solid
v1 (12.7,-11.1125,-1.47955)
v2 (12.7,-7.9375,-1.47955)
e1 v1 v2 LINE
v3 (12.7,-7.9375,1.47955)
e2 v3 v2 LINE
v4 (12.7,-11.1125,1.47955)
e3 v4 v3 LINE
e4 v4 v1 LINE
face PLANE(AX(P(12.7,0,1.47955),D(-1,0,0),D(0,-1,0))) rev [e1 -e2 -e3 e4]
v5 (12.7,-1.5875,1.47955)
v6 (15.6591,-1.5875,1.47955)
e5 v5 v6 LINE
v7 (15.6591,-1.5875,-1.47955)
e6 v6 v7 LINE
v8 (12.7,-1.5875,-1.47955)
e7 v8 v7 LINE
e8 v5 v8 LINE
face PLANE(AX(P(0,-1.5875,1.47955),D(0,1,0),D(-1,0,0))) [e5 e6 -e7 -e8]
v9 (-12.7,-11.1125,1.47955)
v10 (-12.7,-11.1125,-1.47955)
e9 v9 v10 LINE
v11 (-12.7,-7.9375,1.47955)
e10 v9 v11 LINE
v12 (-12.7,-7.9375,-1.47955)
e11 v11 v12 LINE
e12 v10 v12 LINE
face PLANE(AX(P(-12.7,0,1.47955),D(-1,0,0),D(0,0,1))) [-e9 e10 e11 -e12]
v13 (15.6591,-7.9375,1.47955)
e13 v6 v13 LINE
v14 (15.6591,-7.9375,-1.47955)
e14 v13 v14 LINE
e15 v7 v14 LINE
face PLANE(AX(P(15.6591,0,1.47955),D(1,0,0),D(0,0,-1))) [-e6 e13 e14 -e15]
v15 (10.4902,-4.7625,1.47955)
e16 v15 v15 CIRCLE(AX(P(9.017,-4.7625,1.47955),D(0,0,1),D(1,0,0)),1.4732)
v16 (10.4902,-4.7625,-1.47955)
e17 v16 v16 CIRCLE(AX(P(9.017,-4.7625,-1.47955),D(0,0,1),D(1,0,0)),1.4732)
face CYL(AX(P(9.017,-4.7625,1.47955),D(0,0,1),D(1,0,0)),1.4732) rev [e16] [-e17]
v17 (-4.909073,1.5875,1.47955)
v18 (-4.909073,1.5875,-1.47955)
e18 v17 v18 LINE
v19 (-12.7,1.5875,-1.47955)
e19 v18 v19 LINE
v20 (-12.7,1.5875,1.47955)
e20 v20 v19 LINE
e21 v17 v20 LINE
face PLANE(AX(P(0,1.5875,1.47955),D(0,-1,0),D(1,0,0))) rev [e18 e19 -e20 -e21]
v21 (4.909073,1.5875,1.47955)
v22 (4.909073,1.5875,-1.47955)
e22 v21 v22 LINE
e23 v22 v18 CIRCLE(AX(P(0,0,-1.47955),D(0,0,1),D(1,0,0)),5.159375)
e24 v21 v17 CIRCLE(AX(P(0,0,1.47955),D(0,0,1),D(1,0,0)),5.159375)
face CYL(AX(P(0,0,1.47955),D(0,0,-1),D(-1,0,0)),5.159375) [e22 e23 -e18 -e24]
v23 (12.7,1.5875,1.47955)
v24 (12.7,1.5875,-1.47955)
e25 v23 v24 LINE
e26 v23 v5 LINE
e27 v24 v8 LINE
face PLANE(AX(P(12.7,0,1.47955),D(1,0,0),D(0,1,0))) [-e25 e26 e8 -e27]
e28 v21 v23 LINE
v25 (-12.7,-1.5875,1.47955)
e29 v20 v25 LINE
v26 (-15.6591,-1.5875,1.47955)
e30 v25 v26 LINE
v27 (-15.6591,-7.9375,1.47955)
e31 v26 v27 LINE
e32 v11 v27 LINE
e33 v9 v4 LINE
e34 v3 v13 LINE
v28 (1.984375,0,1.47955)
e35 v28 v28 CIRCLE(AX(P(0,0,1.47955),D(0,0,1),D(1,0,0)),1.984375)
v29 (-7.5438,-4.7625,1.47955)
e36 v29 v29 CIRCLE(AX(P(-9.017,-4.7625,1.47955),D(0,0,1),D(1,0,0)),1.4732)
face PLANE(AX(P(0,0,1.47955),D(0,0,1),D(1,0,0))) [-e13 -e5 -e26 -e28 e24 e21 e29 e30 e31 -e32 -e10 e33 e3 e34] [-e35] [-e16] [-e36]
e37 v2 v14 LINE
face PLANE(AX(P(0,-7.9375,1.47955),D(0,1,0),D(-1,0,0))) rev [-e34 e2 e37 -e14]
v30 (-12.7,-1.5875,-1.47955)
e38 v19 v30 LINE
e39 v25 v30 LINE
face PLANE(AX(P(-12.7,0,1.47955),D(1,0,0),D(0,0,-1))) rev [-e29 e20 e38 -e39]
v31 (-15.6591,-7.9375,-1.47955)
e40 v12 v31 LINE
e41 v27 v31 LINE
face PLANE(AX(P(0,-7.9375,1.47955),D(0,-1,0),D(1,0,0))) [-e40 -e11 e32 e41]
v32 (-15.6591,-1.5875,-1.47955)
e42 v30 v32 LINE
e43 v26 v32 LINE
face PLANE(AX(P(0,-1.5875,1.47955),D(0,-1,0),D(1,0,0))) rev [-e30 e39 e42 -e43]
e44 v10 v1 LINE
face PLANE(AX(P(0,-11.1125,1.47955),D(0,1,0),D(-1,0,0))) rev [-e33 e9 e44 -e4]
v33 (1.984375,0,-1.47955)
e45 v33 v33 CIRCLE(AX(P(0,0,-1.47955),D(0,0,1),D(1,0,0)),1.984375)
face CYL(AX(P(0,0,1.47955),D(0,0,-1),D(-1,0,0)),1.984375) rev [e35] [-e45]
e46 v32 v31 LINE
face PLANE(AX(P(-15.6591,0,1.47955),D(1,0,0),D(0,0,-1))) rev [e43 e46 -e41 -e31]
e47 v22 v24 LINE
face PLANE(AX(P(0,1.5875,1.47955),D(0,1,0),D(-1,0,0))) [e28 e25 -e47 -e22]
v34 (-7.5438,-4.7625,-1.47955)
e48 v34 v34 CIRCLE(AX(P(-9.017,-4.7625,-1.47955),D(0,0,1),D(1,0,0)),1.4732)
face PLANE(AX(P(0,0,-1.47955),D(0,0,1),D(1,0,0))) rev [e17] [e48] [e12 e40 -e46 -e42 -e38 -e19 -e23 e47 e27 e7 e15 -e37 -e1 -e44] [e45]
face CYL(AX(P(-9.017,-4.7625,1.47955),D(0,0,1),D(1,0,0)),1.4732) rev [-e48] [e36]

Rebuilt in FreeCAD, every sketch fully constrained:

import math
import FreeCAD as App
import Part
import Sketcher
from FreeCAD import Vector
Q = App.Units.Quantity

doc = App.newDocument("Part")
body = doc.addObject("PartDesign::Body", "Body")

# Sketch on XY plane
sketch1 = doc.addObject("Sketcher::SketchObject", "Sketch")
body.addObject(sketch1)
sketch1.AttachmentSupport = (doc.XY_Plane, [""])
sketch1.MapMode = "FlatFace"
sketch1.addGeometry(Part.LineSegment(Vector(-15.7, -1.6, 0), Vector(-15.7, -7.9, 0)), False)
sketch1.addGeometry(Part.LineSegment(Vector(-15.7, -7.9, 0), Vector(-12.7, -7.9, 0)), False)
sketch1.addGeometry(Part.LineSegment(Vector(-12.7, -7.9, 0), Vector(-12.7, -11.1, 0)), False)
sketch1.addGeometry(Part.LineSegment(Vector(-12.7, -11.1, 0), Vector(12.7, -11.1, 0)), False)
sketch1.addGeometry(Part.LineSegment(Vector(12.7, -11.1, 0), Vector(12.7, -7.9, 0)), False)
sketch1.addGeometry(Part.LineSegment(Vector(12.7, -7.9, 0), Vector(15.7, -7.9, 0)), False)
sketch1.addGeometry(Part.LineSegment(Vector(15.7, -7.9, 0), Vector(15.7, -1.6, 0)), False)
sketch1.addGeometry(Part.LineSegment(Vector(15.7, -1.6, 0), Vector(12.7, -1.6, 0)), False)
sketch1.addGeometry(Part.LineSegment(Vector(12.7, -1.6, 0), Vector(12.7, 1.6, 0)), False)
sketch1.addGeometry(Part.LineSegment(Vector(12.7, 1.6, 0), Vector(4.9, 1.6, 0)), False)
sketch1.addGeometry(Part.ArcOfCircle(Part.Circle(Vector(0, 0, 0), Vector(0, 0, 1), 5.2), math.radians(18), math.radians(162)), False)
sketch1.addGeometry(Part.LineSegment(Vector(-4.9, 1.6, 0), Vector(-12.7, 1.6, 0)), False)
sketch1.addGeometry(Part.LineSegment(Vector(-12.7, 1.6, 0), Vector(-12.7, -1.6, 0)), False)
sketch1.addGeometry(Part.LineSegment(Vector(-12.7, -1.6, 0), Vector(-15.7, -1.6, 0)), False)
sketch1.addGeometry(Part.Circle(Vector(0, 0, 0), Vector(0, 0, 1), 2), False)
sketch1.addConstraint(Sketcher.Constraint("Coincident", 0, 2, 1, 1))
sketch1.addConstraint(Sketcher.Constraint("Coincident", 1, 2, 2, 1))
sketch1.addConstraint(Sketcher.Constraint("Coincident", 2, 2, 3, 1))
sketch1.addConstraint(Sketcher.Constraint("Coincident", 3, 2, 4, 1))
sketch1.addConstraint(Sketcher.Constraint("Coincident", 4, 2, 5, 1))
sketch1.addConstraint(Sketcher.Constraint("Coincident", 5, 2, 6, 1))
sketch1.addConstraint(Sketcher.Constraint("Coincident", 6, 2, 7, 1))
sketch1.addConstraint(Sketcher.Constraint("Coincident", 7, 2, 8, 1))
sketch1.addConstraint(Sketcher.Constraint("Coincident", 8, 2, 9, 1))
sketch1.addConstraint(Sketcher.Constraint("Coincident", 9, 2, 10, 1))
sketch1.addConstraint(Sketcher.Constraint("Coincident", 10, 2, 11, 1))
sketch1.addConstraint(Sketcher.Constraint("Coincident", 11, 2, 12, 1))
sketch1.addConstraint(Sketcher.Constraint("Coincident", 12, 2, 13, 1))
sketch1.addConstraint(Sketcher.Constraint("Coincident", 13, 2, 0, 1))
sketch1.addConstraint(Sketcher.Constraint("Vertical", 0))
sketch1.addConstraint(Sketcher.Constraint("Horizontal", 1))
sketch1.addConstraint(Sketcher.Constraint("Vertical", 2))
sketch1.addConstraint(Sketcher.Constraint("Horizontal", 3))
sketch1.addConstraint(Sketcher.Constraint("Vertical", 4))
sketch1.addConstraint(Sketcher.Constraint("Horizontal", 5))
sketch1.addConstraint(Sketcher.Constraint("Vertical", 6))
sketch1.addConstraint(Sketcher.Constraint("Horizontal", 7))
sketch1.addConstraint(Sketcher.Constraint("Vertical", 8))
sketch1.addConstraint(Sketcher.Constraint("Horizontal", 9))
sketch1.addConstraint(Sketcher.Constraint("Horizontal", 11))
sketch1.addConstraint(Sketcher.Constraint("Vertical", 12))
sketch1.addConstraint(Sketcher.Constraint("Horizontal", 13))
sketch1.addConstraint(Sketcher.Constraint("Coincident", 10, 3, -1, 1))
sketch1.addConstraint(Sketcher.Constraint("Coincident", 14, 3, -1, 1))
sketch1.addConstraint(Sketcher.Constraint("Symmetric", 7, 2, 11, 2, -1, 1))
sketch1.addConstraint(Sketcher.Constraint("Symmetric", 1, 2, 4, 2, -2))
sketch1.addConstraint(Sketcher.Constraint("Symmetric", 6, 2, 13, 2, -2))
sketch1.addConstraint(Sketcher.Constraint("Horizontal", 9, 2, 10, 2))
sketch1.addConstraint(Sketcher.Constraint("Vertical", 4, 2, 7, 2))
sketch1.addConstraint(Sketcher.Constraint("Equal", 4, 8))
sketch1.addConstraint(Sketcher.Constraint("DistanceX", 3, 1, 3, 2, Q("1 in")))
sketch1.addConstraint(Sketcher.Constraint("Diameter", 14, Q("0.15625 in")))
sketch1.addConstraint(Sketcher.Constraint("Radius", 10, Q("0.203125 in")))
sketch1.addConstraint(Sketcher.Constraint("DistanceY", 0, 2, 0, 1, Q("0.25 in")))
sketch1.addConstraint(Sketcher.Constraint("DistanceY", 3, 2, 8, 2, Q("0.5 in")))
sketch1.addConstraint(Sketcher.Constraint("DistanceX", 1, 1, 1, 2, Q("0.1165 in")))
pad1 = doc.addObject("PartDesign::Pad", "Pad")
body.addObject(pad1)
pad1.Profile = sketch1
pad1.Length = Q("0.1165 in")
pad1.Midplane = True

# Sketch on XY plane
sketch2 = doc.addObject("Sketcher::SketchObject", "Sketch001")
body.addObject(sketch2)
sketch2.AttachmentSupport = (doc.XY_Plane, [""])
sketch2.MapMode = "FlatFace"
sketch2.AttachmentOffset = App.Placement(Vector(0, 0, 1.47955), App.Rotation())
sketch2.addGeometry(Part.Circle(Vector(-9, -4.8, 0), Vector(0, 0, 1), 1.5), False)
sketch2.addGeometry(Part.Circle(Vector(9, -4.8, 0), Vector(0, 0, 1), 1.5), False)
sketch2.addConstraint(Sketcher.Constraint("Equal", 0, 1))
sketch2.addConstraint(Sketcher.Constraint("Symmetric", 0, 3, 1, 3, -2))
sketch2.addConstraint(Sketcher.Constraint("Diameter", 0, Q("0.116 in")))
sketch2.addConstraint(Sketcher.Constraint("DistanceX", 0, 3, 1, 3, Q("0.71 in")))
sketch2.addConstraint(Sketcher.Constraint("DistanceY", 0, 3, -1, 1, Q("0.1875 in")))
doc.recompute()
hole = doc.addObject("PartDesign::Hole", "Hole")
body.addObject(hole)
hole.Profile = sketch2
hole.ThreadType = "None"
hole.Diameter = Q("0.116 in")
hole.DepthType = "Dimension"
hole.Depth = Q("0.13 in")
hole.DrillPoint = "Angled"
hole.DrillPointAngle = 118

doc.recompute()
